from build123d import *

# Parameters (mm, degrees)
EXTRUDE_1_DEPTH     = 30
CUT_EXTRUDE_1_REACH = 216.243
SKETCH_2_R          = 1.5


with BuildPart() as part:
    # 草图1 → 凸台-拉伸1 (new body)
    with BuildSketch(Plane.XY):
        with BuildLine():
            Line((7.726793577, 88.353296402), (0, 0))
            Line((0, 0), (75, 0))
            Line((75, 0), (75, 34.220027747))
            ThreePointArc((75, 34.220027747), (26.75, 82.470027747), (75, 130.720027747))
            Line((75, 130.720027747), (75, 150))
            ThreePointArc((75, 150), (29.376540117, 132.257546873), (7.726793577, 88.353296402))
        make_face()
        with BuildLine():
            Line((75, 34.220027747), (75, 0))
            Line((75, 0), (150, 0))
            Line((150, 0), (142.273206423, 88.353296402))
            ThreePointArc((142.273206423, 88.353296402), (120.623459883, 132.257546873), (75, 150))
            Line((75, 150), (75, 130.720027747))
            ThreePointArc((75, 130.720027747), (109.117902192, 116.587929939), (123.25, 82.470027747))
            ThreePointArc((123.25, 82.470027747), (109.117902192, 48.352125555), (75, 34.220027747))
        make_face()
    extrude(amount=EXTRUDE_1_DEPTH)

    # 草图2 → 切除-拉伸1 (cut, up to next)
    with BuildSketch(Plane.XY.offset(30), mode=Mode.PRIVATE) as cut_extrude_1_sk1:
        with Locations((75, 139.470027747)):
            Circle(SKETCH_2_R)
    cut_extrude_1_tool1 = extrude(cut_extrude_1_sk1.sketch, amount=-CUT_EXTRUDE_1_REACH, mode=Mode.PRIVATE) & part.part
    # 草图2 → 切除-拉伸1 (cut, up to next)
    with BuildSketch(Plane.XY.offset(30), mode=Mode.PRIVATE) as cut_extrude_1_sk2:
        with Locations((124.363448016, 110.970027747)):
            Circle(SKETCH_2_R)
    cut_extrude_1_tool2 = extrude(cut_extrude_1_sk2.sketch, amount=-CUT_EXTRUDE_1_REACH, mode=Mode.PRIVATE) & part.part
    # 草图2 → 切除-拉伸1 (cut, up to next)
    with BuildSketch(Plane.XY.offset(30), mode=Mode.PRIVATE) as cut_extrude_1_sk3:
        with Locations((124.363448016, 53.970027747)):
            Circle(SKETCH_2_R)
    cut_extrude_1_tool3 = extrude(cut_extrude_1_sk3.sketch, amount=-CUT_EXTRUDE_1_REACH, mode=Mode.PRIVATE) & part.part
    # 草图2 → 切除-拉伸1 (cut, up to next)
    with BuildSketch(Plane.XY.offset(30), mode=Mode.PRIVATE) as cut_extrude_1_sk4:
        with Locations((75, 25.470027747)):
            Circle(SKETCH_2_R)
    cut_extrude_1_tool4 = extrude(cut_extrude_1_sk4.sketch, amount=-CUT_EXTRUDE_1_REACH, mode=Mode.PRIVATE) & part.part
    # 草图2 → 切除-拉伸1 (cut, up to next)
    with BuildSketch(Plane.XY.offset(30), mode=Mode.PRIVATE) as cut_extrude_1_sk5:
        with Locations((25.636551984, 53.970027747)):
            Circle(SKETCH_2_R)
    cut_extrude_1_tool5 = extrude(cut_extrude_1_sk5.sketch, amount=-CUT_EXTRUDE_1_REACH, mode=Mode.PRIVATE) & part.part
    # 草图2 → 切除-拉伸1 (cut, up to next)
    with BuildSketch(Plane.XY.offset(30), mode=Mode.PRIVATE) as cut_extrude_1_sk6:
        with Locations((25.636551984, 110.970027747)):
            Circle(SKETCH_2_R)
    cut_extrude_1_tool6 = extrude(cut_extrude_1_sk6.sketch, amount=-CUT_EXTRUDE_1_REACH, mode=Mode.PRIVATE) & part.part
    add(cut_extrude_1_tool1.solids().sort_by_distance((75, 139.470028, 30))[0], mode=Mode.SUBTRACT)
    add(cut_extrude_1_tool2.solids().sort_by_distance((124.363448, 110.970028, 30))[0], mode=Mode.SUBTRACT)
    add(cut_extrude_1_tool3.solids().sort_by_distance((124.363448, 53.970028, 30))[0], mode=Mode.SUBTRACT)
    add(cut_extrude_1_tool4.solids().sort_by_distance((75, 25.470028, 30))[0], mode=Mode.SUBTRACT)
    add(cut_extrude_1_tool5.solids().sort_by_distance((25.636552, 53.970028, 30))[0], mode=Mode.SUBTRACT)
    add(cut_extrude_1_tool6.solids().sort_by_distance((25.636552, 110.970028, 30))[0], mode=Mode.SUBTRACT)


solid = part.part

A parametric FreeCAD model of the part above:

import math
import FreeCAD as App
import Part
import Sketcher

doc = App.newDocument("Part")
body = doc.addObject("PartDesign::Body", "Body")

sketch1 = body.newObject("Sketcher::SketchObject", "Sketch")
sketch1.AttachmentSupport = (doc.getObject("XY_Plane"), [""])
sketch1.MapMode = "FlatFace"
sketch1.addGeometry([
    Part.LineSegment(App.Vector(7.726794, 88.353296, 0), App.Vector(0, 0, 0)),
    Part.LineSegment(App.Vector(0, 0, 0), App.Vector(150, 0, 0)),
    Part.LineSegment(App.Vector(150, 0, 0), App.Vector(142.273206, 88.353296, 0)),
    Part.ArcOfCircle(Part.Circle(App.Vector(75, 82.470028, 0), App.Vector(0, 0, 1), 67.529972), math.radians(4.997993), math.radians(90)),
    Part.ArcOfCircle(Part.Circle(App.Vector(75, 82.470028, 0), App.Vector(0, 0, 1), 67.529972), math.radians(90), math.radians(175.002007)),
    Part.ArcOfCircle(Part.Circle(App.Vector(75, 82.470028, 0), App.Vector(0, 0, 1), 48.25), math.radians(90), math.radians(270)),
    Part.ArcOfCircle(Part.Circle(App.Vector(75, 82.470028, 0), App.Vector(0, 0, 1), 48.25), math.radians(0), math.radians(90)),
    Part.ArcOfCircle(Part.Circle(App.Vector(75, 82.470028, 0), App.Vector(0, 0, 1), 48.25), math.radians(-90), math.radians(0)),
], False)
sketch1.addConstraint([
    Sketcher.Constraint("Coincident", 0, 2, 1, 1),
    Sketcher.Constraint("Coincident", 1, 2, 2, 1),
    Sketcher.Constraint("Tangent", 2, 2, 3, 1),
    Sketcher.Constraint("Tangent", 3, 2, 4, 1),
    Sketcher.Constraint("Tangent", 4, 2, 0, 1),
    Sketcher.Constraint("Tangent", 5, 1, 6, 2),
    Sketcher.Constraint("Tangent", 6, 1, 7, 2),
    Sketcher.Constraint("Tangent", 7, 1, 5, 2),
    Sketcher.Constraint("Horizontal", 1),
    Sketcher.Constraint("Coincident", 0, 2, -1, 1),
    Sketcher.Constraint("Coincident", 5, 3, 3, 3),
    Sketcher.Constraint("Equal", 3, 4),
    Sketcher.Constraint("Horizontal", 2, 2, 4, 2),
    Sketcher.Constraint("Horizontal", 7, 3, 6, 1),
    Sketcher.Constraint("Vertical", 7, 3, 3, 2),
    Sketcher.Constraint("Vertical", 3, 2, 5, 1),
    Sketcher.Constraint("Vertical", 5, 1, 7, 1),
    Sketcher.Constraint("DistanceX", 1, 1, 1, 2, 150.0),
    Sketcher.Constraint("Radius", 5, 48.25),
    Sketcher.Constraint("DistanceY", -1, 1, 3, 2, 150.0),
    Sketcher.Constraint("Radius", 3, 67.529972),
])
pad1 = body.newObject("PartDesign::Pad", "Pad")
pad1.Profile = sketch1
pad1.Length = 30

sketch2 = body.newObject("Sketcher::SketchObject", "Sketch001")
sketch2.AttachmentSupport = (doc.getObject("XY_Plane"), [""])
sketch2.MapMode = "FlatFace"
sketch2.AttachmentOffset = App.Placement(App.Vector(0, 0, 30), App.Rotation())
sketch2.addGeometry(Part.Circle(App.Vector(75, 139.470028, 0), App.Vector(0, 0, 1), 1.5), False)
sketch2.addConstraint([
    Sketcher.Constraint("Diameter", 0, 3.0),
    Sketcher.Constraint("DistanceX", -1, 1, 0, 3, 75.0),
    Sketcher.Constraint("DistanceY", -1, 1, 0, 3, 139.470028),
])
pocket1 = body.newObject("PartDesign::Pocket", "Pocket")
pocket1.Profile = sketch2
pocket1.Type = "UpToFirst"

sketch3 = body.newObject("Sketcher::SketchObject", "Sketch002")
sketch3.AttachmentSupport = (doc.getObject("XY_Plane"), [""])
sketch3.MapMode = "FlatFace"
sketch3.AttachmentOffset = App.Placement(App.Vector(0, 0, 30), App.Rotation())
sketch3.addGeometry(Part.Circle(App.Vector(124.363448, 110.970028, 0), App.Vector(0, 0, 1), 1.5), False)
sketch3.addConstraint([
    Sketcher.Constraint("Diameter", 0, 3.0),
    Sketcher.Constraint("DistanceX", -1, 1, 0, 3, 124.363448),
    Sketcher.Constraint("DistanceY", -1, 1, 0, 3, 110.970028),
])
pocket2 = body.newObject("PartDesign::Pocket", "Pocket001")
pocket2.Profile = sketch3
pocket2.Type = "UpToFirst"

sketch4 = body.newObject("Sketcher::SketchObject", "Sketch003")
sketch4.AttachmentSupport = (doc.getObject("XY_Plane"), [""])
sketch4.MapMode = "FlatFace"
sketch4.AttachmentOffset = App.Placement(App.Vector(0, 0, 30), App.Rotation())
sketch4.addGeometry(Part.Circle(App.Vector(124.363448, 53.970028, 0), App.Vector(0, 0, 1), 1.5), False)
sketch4.addConstraint([
    Sketcher.Constraint("Diameter", 0, 3.0),
    Sketcher.Constraint("DistanceX", -1, 1, 0, 3, 124.363448),
    Sketcher.Constraint("DistanceY", -1, 1, 0, 3, 53.970028),
])
pocket3 = body.newObject("PartDesign::Pocket", "Pocket002")
pocket3.Profile = sketch4
pocket3.Type = "UpToFirst"

sketch5 = body.newObject("Sketcher::SketchObject", "Sketch004")
sketch5.AttachmentSupport = (doc.getObject("XY_Plane"), [""])
sketch5.MapMode = "FlatFace"
sketch5.AttachmentOffset = App.Placement(App.Vector(0, 0, 30), App.Rotation())
sketch5.addGeometry(Part.Circle(App.Vector(75, 25.470028, 0), App.Vector(0, 0, 1), 1.5), False)
sketch5.addConstraint([
    Sketcher.Constraint("Diameter", 0, 3.0),
    Sketcher.Constraint("DistanceX", -1, 1, 0, 3, 75.0),
    Sketcher.Constraint("DistanceY", -1, 1, 0, 3, 25.470028),
])
pocket4 = body.newObject("PartDesign::Pocket", "Pocket003")
pocket4.Profile = sketch5
pocket4.Type = "UpToFirst"

sketch6 = body.newObject("Sketcher::SketchObject", "Sketch005")
sketch6.AttachmentSupport = (doc.getObject("XY_Plane"), [""])
sketch6.MapMode = "FlatFace"
sketch6.AttachmentOffset = App.Placement(App.Vector(0, 0, 30), App.Rotation())
sketch6.addGeometry(Part.Circle(App.Vector(25.636552, 53.970028, 0), App.Vector(0, 0, 1), 1.5), False)
sketch6.addConstraint([
    Sketcher.Constraint("Diameter", 0, 3.0),
    Sketcher.Constraint("DistanceX", -1, 1, 0, 3, 25.636552),
    Sketcher.Constraint("DistanceY", -1, 1, 0, 3, 53.970028),
])
pocket5 = body.newObject("PartDesign::Pocket", "Pocket004")
pocket5.Profile = sketch6
pocket5.Type = "UpToFirst"

sketch7 = body.newObject("Sketcher::SketchObject", "Sketch006")
sketch7.AttachmentSupport = (doc.getObject("XY_Plane"), [""])
sketch7.MapMode = "FlatFace"
sketch7.AttachmentOffset = App.Placement(App.Vector(0, 0, 30), App.Rotation())
sketch7.addGeometry(Part.Circle(App.Vector(25.636552, 110.970028, 0), App.Vector(0, 0, 1), 1.5), False)
sketch7.addConstraint([
    Sketcher.Constraint("Diameter", 0, 3.0),
    Sketcher.Constraint("DistanceX", -1, 1, 0, 3, 25.636552),
    Sketcher.Constraint("DistanceY", -1, 1, 0, 3, 110.970028),
])
pocket6 = body.newObject("PartDesign::Pocket", "Pocket005")
pocket6.Profile = sketch7
pocket6.Type = "UpToFirst"

doc.recompute()
